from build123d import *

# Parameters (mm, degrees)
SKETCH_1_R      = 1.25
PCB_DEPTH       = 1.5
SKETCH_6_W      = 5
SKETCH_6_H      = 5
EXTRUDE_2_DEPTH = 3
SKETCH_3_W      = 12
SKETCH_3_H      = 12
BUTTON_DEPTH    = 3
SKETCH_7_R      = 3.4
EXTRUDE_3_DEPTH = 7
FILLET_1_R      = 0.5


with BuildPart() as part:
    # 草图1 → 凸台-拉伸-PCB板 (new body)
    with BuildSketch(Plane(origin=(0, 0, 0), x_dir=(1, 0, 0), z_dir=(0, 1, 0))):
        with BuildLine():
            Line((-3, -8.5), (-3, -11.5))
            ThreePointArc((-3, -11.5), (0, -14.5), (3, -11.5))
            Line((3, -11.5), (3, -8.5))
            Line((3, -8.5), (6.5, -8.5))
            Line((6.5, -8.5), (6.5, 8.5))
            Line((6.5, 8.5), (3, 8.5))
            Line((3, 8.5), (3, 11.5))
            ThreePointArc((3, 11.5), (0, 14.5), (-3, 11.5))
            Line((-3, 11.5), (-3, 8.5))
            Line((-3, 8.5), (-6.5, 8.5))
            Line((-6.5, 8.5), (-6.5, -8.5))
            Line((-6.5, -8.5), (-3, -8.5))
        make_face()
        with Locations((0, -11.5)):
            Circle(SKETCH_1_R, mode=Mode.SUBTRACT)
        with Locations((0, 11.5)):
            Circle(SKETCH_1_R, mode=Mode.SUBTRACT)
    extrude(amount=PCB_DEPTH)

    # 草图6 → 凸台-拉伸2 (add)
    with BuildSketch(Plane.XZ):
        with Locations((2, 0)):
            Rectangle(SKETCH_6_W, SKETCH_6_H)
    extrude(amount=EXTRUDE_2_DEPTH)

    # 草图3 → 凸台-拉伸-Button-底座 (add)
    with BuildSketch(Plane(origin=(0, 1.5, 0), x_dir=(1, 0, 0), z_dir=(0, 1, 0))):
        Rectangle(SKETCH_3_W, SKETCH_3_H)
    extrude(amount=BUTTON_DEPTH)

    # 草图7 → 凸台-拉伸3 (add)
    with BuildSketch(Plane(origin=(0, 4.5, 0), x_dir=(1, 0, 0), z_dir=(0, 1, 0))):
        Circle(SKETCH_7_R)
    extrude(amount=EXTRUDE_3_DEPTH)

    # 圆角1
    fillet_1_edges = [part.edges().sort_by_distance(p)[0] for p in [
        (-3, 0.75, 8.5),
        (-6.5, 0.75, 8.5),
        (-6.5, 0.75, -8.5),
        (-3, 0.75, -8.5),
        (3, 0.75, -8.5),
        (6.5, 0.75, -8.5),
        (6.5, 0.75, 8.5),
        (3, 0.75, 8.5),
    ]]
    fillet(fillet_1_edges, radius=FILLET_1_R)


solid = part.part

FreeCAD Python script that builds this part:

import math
import FreeCAD as App
import Part
import Sketcher

V = App.Vector
Q = App.Units.Quantity


def edges_at(feature, points):
    """Names of the edges that pass closest to the given points."""
    edges = feature.Shape.Edges
    near = lambda p: min(range(len(edges)), key=lambda i: edges[i].distToShape(Part.Vertex(*p))[0])
    return sorted({f"Edge{near(p) + 1}" for p in points})

doc = App.newDocument("Part")
body = doc.addObject("PartDesign::Body", "Body")

# Sketch on XZ plane
sketch1 = body.newObject("Sketcher::SketchObject", "Sketch")
sketch1.AttachmentSupport = (doc.getObject("XZ_Plane"), [""])
sketch1.MapMode = "FlatFace"
sketch1.addGeometry(Part.LineSegment(V(-3, 8.5, 0), V(-3, 11.5, 0)), False)
sketch1.addGeometry(Part.ArcOfCircle(Part.Circle(V(0, 11.5, 0), V(0, 0, 1), 3), math.radians(0), math.radians(180)), False)
sketch1.addGeometry(Part.LineSegment(V(3, 11.5, 0), V(3, 8.5, 0)), False)
sketch1.addGeometry(Part.LineSegment(V(3, 8.5, 0), V(6.5, 8.5, 0)), False)
sketch1.addGeometry(Part.LineSegment(V(6.5, 8.5, 0), V(6.5, -8.5, 0)), False)
sketch1.addGeometry(Part.LineSegment(V(6.5, -8.5, 0), V(3, -8.5, 0)), False)
sketch1.addGeometry(Part.LineSegment(V(3, -8.5, 0), V(3, -11.5, 0)), False)
sketch1.addGeometry(Part.ArcOfCircle(Part.Circle(V(0, -11.5, 0), V(0, 0, 1), 3), math.radians(180), math.radians(360)), False)
sketch1.addGeometry(Part.LineSegment(V(-3, -11.5, 0), V(-3, -8.5, 0)), False)
sketch1.addGeometry(Part.LineSegment(V(-3, -8.5, 0), V(-6.5, -8.5, 0)), False)
sketch1.addGeometry(Part.LineSegment(V(-6.5, -8.5, 0), V(-6.5, 8.5, 0)), False)
sketch1.addGeometry(Part.LineSegment(V(-6.5, 8.5, 0), V(-3, 8.5, 0)), False)
sketch1.addGeometry(Part.Circle(V(0, 11.5, 0), V(0, 0, 1), 1.2), False)
sketch1.addGeometry(Part.Circle(V(0, -11.5, 0), V(0, 0, 1), 1.2), False)
sketch1.addConstraint(Sketcher.Constraint("Tangent", 0, 2, 1, 2))
sketch1.addConstraint(Sketcher.Constraint("Tangent", 1, 1, 2, 1))
sketch1.addConstraint(Sketcher.Constraint("Coincident", 2, 2, 3, 1))
sketch1.addConstraint(Sketcher.Constraint("Coincident", 3, 2, 4, 1))
sketch1.addConstraint(Sketcher.Constraint("Coincident", 4, 2, 5, 1))
sketch1.addConstraint(Sketcher.Constraint("Coincident", 5, 2, 6, 1))
sketch1.addConstraint(Sketcher.Constraint("Tangent", 6, 2, 7, 2))
sketch1.addConstraint(Sketcher.Constraint("Tangent", 7, 1, 8, 1))
sketch1.addConstraint(Sketcher.Constraint("Coincident", 8, 2, 9, 1))
sketch1.addConstraint(Sketcher.Constraint("Coincident", 9, 2, 10, 1))
sketch1.addConstraint(Sketcher.Constraint("Coincident", 10, 2, 11, 1))
sketch1.addConstraint(Sketcher.Constraint("Coincident", 11, 2, 0, 1))
sketch1.addConstraint(Sketcher.Constraint("Vertical", 0))
sketch1.addConstraint(Sketcher.Constraint("Vertical", 2))
sketch1.addConstraint(Sketcher.Constraint("Horizontal", 3))
sketch1.addConstraint(Sketcher.Constraint("Vertical", 4))
sketch1.addConstraint(Sketcher.Constraint("Horizontal", 5))
sketch1.addConstraint(Sketcher.Constraint("Vertical", 6))
sketch1.addConstraint(Sketcher.Constraint("Vertical", 8))
sketch1.addConstraint(Sketcher.Constraint("Horizontal", 9))
sketch1.addConstraint(Sketcher.Constraint("Vertical", 10))
sketch1.addConstraint(Sketcher.Constraint("Horizontal", 11))
sketch1.addConstraint(Sketcher.Constraint("Coincident", 12, 3, 1, 3))
sketch1.addConstraint(Sketcher.Constraint("Coincident", 13, 3, 7, 3))
sketch1.addConstraint(Sketcher.Constraint("Equal", 1, 7))
sketch1.addConstraint(Sketcher.Constraint("Equal", 12, 13))
sketch1.addConstraint(Sketcher.Constraint("Symmetric", 1, 3, 7, 3, -1, 1))
sketch1.addConstraint(Sketcher.Constraint("Symmetric", 3, 2, 9, 2, -1, 1))
sketch1.addConstraint(Sketcher.Constraint("Symmetric", 5, 2, 8, 2, -2))
sketch1.addConstraint(Sketcher.Constraint("Horizontal", 3, 2, 10, 2))
sketch1.addConstraint(Sketcher.Constraint("Radius", 1, Q("3 mm")))
sketch1.addConstraint(Sketcher.Constraint("Diameter", 12, Q("2.5 mm")))
sketch1.addConstraint(Sketcher.Constraint("DistanceY", 0, 1, 0, 2, Q("3 mm")))
sketch1.addConstraint(Sketcher.Constraint("DistanceY", 4, 2, 4, 1, Q("17 mm")))
sketch1.addConstraint(Sketcher.Constraint("DistanceX", 3, 1, 3, 2, Q("3.5 mm")))
pad1 = body.newObject("PartDesign::Pad", "Pad")
pad1.Profile = sketch1
pad1.Length = 1.5
pad1.Reversed = True

# Sketch on XZ plane
sketch2 = body.newObject("Sketcher::SketchObject", "Sketch001")
sketch2.AttachmentSupport = (doc.getObject("XZ_Plane"), [""])
sketch2.MapMode = "FlatFace"
sketch2.addGeometry(Part.LineSegment(V(0, 2, 0), V(0, -2, 0)), False)
sketch2.addGeometry(Part.LineSegment(V(0, -2, 0), V(4, -2, 0)), False)
sketch2.addGeometry(Part.LineSegment(V(4, -2, 0), V(4, 2, 0)), False)
sketch2.addGeometry(Part.LineSegment(V(4, 2, 0), V(0, 2, 0)), False)
sketch2.addConstraint(Sketcher.Constraint("Coincident", 0, 2, 1, 1))
sketch2.addConstraint(Sketcher.Constraint("Coincident", 1, 2, 2, 1))
sketch2.addConstraint(Sketcher.Constraint("Coincident", 2, 2, 3, 1))
sketch2.addConstraint(Sketcher.Constraint("Coincident", 3, 2, 0, 1))
sketch2.addConstraint(Sketcher.Constraint("Vertical", 0))
sketch2.addConstraint(Sketcher.Constraint("Horizontal", 1))
sketch2.addConstraint(Sketcher.Constraint("Vertical", 2))
sketch2.addConstraint(Sketcher.Constraint("Horizontal", 3))
sketch2.addConstraint(Sketcher.Constraint("Equal", 3, 0))
sketch2.addConstraint(Sketcher.Constraint("DistanceX", 1, 1, 1, 2, Q("5 mm")))
sketch2.addConstraint(Sketcher.Constraint("DistanceX", 0, 2, -1, 1, Q("0.5 mm")))
sketch2.addConstraint(Sketcher.Constraint("DistanceY", 0, 2, -1, 1, Q("2.5 mm")))
pad2 = body.newObject("PartDesign::Pad", "Pad001")
pad2.Profile = sketch2
pad2.Length = 3

# Sketch on XZ plane
sketch3 = body.newObject("Sketcher::SketchObject", "Sketch002")
sketch3.AttachmentSupport = (doc.getObject("XZ_Plane"), [""])
sketch3.MapMode = "FlatFace"
sketch3.AttachmentOffset = App.Placement(V(0, 0, -1.5), App.Rotation())
sketch3.addGeometry(Part.LineSegment(V(-6, -6, 0), V(-6, 6, 0)), False)
sketch3.addGeometry(Part.LineSegment(V(-6, 6, 0), V(6, 6, 0)), False)
sketch3.addGeometry(Part.LineSegment(V(6, 6, 0), V(6, -6, 0)), False)
sketch3.addGeometry(Part.LineSegment(V(6, -6, 0), V(-6, -6, 0)), False)
sketch3.addConstraint(Sketcher.Constraint("Coincident", 0, 2, 1, 1))
sketch3.addConstraint(Sketcher.Constraint("Coincident", 1, 2, 2, 1))
sketch3.addConstraint(Sketcher.Constraint("Coincident", 2, 2, 3, 1))
sketch3.addConstraint(Sketcher.Constraint("Coincident", 3, 2, 0, 1))
sketch3.addConstraint(Sketcher.Constraint("Vertical", 0))
sketch3.addConstraint(Sketcher.Constraint("Horizontal", 1))
sketch3.addConstraint(Sketcher.Constraint("Vertical", 2))
sketch3.addConstraint(Sketcher.Constraint("Horizontal", 3))
sketch3.addConstraint(Sketcher.Constraint("Symmetric", 0, 2, 2, 2, -1, 1))
sketch3.addConstraint(Sketcher.Constraint("Equal", 3, 0))
sketch3.addConstraint(Sketcher.Constraint("DistanceX", 1, 1, 1, 2, Q("12 mm")))
pad3 = body.newObject("PartDesign::Pad", "Pad002")
pad3.Profile = sketch3
pad3.Length = 3
pad3.Reversed = True

# Sketch on XZ plane
sketch4 = body.newObject("Sketcher::SketchObject", "Sketch003")
sketch4.AttachmentSupport = (doc.getObject("XZ_Plane"), [""])
sketch4.MapMode = "FlatFace"
sketch4.AttachmentOffset = App.Placement(V(0, 0, -4.5), App.Rotation())
sketch4.addGeometry(Part.Circle(V(0, 0, 0), V(0, 0, 1), 3.4), False)
sketch4.addConstraint(Sketcher.Constraint("Coincident", 0, 3, -1, 1))
sketch4.addConstraint(Sketcher.Constraint("Diameter", 0, Q("6.8 mm")))
pad4 = body.newObject("PartDesign::Pad", "Pad003")
pad4.Profile = sketch4
pad4.Length = 7
pad4.Reversed = True
doc.recompute()

fillet = body.newObject("PartDesign::Fillet", "Fillet")
fillet.Base = (pad4, edges_at(pad4, [
    (-3, 0.75, 8.5),
    (-6.5, 0.75, 8.5),
    (-6.5, 0.75, -8.5),
    (-3, 0.75, -8.5),
    (3, 0.75, -8.5),
    (6.5, 0.75, -8.5),
    (6.5, 0.75, 8.5),
    (3, 0.75, 8.5),
]))
fillet.Radius = 0.5

doc.recompute()
